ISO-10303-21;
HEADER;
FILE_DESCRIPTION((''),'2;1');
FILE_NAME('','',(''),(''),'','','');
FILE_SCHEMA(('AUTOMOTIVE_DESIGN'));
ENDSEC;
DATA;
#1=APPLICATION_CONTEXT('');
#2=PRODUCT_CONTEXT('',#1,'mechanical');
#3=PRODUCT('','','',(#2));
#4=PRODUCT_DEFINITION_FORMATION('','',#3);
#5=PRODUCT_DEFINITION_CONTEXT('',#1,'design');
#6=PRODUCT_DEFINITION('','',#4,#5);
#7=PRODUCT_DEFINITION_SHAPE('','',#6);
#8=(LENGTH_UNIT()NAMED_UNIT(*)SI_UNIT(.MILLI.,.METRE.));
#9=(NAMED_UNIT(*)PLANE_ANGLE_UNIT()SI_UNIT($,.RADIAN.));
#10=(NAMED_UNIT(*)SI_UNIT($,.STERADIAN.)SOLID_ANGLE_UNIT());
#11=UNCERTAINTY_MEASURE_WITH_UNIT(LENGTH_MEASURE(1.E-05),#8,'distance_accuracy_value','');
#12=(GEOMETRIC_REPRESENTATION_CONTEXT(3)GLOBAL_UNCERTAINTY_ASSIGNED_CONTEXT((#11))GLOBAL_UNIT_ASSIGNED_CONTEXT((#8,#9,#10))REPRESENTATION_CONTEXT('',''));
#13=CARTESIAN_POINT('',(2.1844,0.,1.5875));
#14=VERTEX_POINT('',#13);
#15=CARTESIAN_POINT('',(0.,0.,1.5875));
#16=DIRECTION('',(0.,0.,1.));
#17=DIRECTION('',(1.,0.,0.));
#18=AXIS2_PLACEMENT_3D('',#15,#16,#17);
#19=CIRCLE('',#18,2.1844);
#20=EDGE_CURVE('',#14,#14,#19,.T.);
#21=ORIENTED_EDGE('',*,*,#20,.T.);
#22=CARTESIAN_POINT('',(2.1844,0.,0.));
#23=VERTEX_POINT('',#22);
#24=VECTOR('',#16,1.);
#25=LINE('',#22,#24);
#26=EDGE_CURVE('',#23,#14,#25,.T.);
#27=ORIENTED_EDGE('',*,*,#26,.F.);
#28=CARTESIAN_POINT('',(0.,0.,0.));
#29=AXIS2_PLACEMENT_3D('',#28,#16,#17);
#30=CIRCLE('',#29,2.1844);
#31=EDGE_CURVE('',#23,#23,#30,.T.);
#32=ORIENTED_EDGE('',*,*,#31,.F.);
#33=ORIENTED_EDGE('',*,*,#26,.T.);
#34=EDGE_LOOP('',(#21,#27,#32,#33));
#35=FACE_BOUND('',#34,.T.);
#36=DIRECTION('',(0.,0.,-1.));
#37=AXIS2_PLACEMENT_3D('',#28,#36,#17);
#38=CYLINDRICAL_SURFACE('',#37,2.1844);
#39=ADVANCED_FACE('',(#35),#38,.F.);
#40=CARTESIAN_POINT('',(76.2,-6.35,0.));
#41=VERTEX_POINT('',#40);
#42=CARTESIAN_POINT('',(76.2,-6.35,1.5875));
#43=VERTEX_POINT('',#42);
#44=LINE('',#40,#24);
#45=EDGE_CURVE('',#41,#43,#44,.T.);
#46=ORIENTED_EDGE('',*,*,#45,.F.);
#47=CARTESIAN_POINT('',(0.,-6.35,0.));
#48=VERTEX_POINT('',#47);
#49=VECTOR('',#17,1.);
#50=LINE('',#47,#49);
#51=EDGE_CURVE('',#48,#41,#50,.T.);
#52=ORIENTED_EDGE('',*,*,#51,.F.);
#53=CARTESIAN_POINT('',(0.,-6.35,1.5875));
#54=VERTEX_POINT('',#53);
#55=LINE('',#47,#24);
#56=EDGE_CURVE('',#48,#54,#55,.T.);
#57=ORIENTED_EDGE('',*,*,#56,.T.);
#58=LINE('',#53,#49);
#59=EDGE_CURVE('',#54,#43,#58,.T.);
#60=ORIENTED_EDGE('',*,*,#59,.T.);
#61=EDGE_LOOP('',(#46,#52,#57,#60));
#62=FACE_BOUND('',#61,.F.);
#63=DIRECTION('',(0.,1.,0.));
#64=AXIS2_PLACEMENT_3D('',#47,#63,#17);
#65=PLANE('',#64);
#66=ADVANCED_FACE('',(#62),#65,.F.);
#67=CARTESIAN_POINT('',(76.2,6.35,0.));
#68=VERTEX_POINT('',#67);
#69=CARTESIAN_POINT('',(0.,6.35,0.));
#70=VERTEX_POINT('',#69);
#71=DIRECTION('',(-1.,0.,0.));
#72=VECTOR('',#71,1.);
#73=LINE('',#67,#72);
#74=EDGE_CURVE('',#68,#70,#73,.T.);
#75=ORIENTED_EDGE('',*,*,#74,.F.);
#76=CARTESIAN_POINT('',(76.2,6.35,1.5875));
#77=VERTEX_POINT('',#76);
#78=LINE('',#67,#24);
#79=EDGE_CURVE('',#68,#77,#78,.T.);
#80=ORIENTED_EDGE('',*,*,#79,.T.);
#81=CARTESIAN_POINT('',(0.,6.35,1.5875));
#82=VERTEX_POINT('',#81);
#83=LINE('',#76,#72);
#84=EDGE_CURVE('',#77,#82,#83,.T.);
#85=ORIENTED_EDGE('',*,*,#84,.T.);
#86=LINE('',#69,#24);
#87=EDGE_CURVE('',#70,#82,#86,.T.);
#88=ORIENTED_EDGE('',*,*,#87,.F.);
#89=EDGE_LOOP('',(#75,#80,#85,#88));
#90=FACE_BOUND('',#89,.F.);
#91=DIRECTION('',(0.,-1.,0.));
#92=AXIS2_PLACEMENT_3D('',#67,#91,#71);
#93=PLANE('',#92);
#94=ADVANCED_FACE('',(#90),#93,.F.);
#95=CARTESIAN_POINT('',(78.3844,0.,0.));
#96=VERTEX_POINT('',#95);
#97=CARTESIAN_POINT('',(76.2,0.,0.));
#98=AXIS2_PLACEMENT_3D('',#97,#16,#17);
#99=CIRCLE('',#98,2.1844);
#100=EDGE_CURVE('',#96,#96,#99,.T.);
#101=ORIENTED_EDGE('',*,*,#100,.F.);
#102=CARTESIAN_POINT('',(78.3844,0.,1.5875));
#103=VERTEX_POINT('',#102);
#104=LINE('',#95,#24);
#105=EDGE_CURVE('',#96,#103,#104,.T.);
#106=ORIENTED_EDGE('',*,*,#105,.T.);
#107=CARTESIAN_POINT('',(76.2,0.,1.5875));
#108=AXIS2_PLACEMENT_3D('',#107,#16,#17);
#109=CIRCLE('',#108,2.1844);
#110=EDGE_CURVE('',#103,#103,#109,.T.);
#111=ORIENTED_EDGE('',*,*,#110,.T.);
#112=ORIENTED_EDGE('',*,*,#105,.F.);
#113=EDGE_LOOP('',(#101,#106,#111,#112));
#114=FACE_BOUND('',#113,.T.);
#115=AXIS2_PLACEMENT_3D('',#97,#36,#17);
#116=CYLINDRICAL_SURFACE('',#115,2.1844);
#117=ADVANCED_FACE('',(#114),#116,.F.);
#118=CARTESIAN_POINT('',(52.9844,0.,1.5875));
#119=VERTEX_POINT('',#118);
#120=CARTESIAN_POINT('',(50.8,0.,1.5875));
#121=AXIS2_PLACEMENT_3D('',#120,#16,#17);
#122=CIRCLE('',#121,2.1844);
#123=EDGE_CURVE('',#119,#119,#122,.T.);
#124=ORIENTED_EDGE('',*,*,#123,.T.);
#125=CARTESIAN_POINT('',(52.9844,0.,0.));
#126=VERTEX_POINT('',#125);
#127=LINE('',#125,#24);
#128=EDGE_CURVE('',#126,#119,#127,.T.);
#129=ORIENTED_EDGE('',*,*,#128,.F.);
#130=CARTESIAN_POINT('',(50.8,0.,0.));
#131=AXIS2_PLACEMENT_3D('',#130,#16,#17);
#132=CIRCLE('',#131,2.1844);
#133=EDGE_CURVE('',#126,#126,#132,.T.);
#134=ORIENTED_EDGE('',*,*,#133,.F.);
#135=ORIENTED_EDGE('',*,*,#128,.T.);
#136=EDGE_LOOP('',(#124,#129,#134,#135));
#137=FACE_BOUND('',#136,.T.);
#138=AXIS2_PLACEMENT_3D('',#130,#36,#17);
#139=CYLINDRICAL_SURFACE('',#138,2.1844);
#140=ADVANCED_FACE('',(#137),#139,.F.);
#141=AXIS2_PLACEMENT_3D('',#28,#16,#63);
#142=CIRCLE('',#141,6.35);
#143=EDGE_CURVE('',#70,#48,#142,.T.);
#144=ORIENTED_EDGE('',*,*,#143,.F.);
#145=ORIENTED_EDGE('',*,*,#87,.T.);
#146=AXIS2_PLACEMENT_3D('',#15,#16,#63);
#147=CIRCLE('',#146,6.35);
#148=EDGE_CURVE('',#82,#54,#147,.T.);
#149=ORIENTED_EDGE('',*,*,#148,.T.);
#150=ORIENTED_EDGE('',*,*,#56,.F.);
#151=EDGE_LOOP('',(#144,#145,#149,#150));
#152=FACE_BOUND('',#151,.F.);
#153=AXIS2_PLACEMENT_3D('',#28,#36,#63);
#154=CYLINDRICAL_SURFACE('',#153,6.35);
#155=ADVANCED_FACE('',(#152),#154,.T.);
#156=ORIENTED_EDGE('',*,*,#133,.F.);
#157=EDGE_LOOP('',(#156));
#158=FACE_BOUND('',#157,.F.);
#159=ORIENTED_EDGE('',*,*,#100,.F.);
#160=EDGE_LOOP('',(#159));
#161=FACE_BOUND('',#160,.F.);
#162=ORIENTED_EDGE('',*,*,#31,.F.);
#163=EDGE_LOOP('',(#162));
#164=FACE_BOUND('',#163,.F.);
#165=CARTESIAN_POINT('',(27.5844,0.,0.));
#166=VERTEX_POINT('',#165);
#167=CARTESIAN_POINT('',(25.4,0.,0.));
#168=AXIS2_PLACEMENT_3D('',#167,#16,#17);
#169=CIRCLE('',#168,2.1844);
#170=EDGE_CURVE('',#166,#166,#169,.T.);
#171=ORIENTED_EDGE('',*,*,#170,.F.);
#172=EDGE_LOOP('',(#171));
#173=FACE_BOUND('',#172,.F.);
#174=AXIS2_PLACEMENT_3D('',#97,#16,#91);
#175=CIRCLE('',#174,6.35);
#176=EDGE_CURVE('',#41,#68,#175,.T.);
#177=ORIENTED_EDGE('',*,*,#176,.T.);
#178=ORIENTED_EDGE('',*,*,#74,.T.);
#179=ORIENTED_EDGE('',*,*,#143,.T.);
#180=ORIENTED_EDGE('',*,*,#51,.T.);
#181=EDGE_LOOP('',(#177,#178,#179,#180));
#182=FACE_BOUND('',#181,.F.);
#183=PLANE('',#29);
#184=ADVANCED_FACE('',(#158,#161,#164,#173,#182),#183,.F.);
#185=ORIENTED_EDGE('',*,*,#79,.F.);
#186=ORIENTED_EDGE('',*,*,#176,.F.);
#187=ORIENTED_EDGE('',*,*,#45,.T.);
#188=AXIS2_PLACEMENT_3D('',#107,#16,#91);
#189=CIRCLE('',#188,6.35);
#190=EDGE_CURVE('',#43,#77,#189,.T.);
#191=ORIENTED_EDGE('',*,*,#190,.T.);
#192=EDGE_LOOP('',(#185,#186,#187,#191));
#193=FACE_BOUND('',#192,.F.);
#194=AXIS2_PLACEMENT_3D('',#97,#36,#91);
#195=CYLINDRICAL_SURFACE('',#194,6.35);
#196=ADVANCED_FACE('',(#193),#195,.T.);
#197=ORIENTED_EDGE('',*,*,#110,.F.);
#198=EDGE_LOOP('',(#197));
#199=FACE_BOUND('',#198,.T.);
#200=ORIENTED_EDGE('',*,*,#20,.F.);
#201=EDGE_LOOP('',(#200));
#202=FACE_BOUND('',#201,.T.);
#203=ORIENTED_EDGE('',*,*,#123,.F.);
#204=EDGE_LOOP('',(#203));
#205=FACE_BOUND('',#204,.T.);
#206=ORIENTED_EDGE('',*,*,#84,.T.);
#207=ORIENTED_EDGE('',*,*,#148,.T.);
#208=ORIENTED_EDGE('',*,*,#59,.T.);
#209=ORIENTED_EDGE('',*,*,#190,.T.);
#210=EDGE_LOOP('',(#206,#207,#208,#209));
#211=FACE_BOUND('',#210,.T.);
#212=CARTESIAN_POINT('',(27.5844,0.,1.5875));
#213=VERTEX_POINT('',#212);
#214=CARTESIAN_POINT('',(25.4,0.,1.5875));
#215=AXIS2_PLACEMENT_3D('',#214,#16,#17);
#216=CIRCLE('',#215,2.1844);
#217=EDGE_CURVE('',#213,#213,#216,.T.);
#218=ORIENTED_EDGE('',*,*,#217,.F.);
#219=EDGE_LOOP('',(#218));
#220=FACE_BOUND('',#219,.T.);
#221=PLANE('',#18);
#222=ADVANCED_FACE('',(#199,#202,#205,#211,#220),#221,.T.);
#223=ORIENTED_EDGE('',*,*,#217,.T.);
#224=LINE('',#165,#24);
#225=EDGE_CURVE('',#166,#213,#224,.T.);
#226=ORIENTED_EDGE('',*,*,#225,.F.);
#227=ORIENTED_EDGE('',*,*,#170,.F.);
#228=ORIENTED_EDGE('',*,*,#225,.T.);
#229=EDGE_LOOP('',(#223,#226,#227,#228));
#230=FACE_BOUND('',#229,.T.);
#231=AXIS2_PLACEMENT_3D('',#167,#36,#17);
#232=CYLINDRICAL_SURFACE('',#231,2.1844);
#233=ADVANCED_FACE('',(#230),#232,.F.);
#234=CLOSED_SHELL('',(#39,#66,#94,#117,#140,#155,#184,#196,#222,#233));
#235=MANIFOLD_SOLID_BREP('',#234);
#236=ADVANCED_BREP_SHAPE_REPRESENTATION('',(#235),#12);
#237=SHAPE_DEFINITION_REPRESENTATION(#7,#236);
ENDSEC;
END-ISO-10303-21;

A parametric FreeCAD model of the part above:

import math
import FreeCAD as App
import Part
import Sketcher
Q = App.Units.Quantity

doc = App.newDocument("Part")
params = doc.addObject("Spreadsheet::Sheet", "Params")
for row, (alias, value) in enumerate([
    ("sketch1_width", "3 in"),
    ("sketch1_diameter", "0.172 in"),
    ("sketch1_radius", "0.25 in"),
    ("pad1_length", "0.0625 in"),
], start=1):
    params.set(f"A{row}", alias)
    params.set(f"B{row}", "=" + value)
    params.setAlias(f"B{row}", alias)

body = doc.addObject("PartDesign::Body", "Body")

# Sketch on XY plane
sketch1 = body.newObject("Sketcher::SketchObject", "Sketch")
sketch1.AttachmentSupport = (doc.getObject("XY_Plane"), [""])
sketch1.MapMode = "FlatFace"
sketch1.addGeometry([
    Part.ArcOfCircle(Part.Circle(App.Vector(0, 0, 0), App.Vector(0, 0, 1), 6.35), math.radians(90), math.radians(270)),  # 0
    Part.LineSegment(App.Vector(0, -6.35, 0), App.Vector(76.2, -6.35, 0)),  # 1
    Part.ArcOfCircle(Part.Circle(App.Vector(76.2, 0, 0), App.Vector(0, 0, 1), 6.35), math.radians(-90), math.radians(90)),  # 2
    Part.LineSegment(App.Vector(76.2, 6.35, 0), App.Vector(0, 6.35, 0)),  # 3
    Part.Circle(App.Vector(0, 0, 0), App.Vector(0, 0, 1), 2.1844),  # 4
    Part.Circle(App.Vector(25.4, 0, 0), App.Vector(0, 0, 1), 2.1844),  # 5
    Part.Circle(App.Vector(50.8, 0, 0), App.Vector(0, 0, 1), 2.1844),  # 6
    Part.Circle(App.Vector(76.2, 0, 0), App.Vector(0, 0, 1), 2.1844),  # 7
], False)
sketch1.addConstraint([
    Sketcher.Constraint("Tangent", 0, 2, 1, 1),
    Sketcher.Constraint("Tangent", 1, 2, 2, 1),
    Sketcher.Constraint("Tangent", 2, 2, 3, 1),
    Sketcher.Constraint("Tangent", 3, 2, 0, 1),
    Sketcher.Constraint("Horizontal", 1),
    Sketcher.Constraint("Horizontal", 3),
    Sketcher.Constraint("Coincident", 0, 3, -1, 1),
    Sketcher.Constraint("Coincident", 4, 3, -1, 1),
    Sketcher.Constraint("Coincident", 7, 3, 2, 3),
    Sketcher.Constraint("Equal", 4, 5),
    Sketcher.Constraint("Equal", 5, 6),
    Sketcher.Constraint("Equal", 6, 7),
    Sketcher.Constraint("PointOnObject", 5, 3, -1),
    Sketcher.Constraint("PointOnObject", 6, 3, -1),
    Sketcher.Constraint("DistanceX", 1, 1, 1, 2, Q("3 in")),
    Sketcher.Constraint("Diameter", 4, Q("0.172 in")),
    Sketcher.Constraint("DistanceX", -1, 1, 5, 3, Q("1 in")),
    Sketcher.Constraint("DistanceX", 5, 3, 6, 3, Q("1 in")),
    Sketcher.Constraint("Radius", 0, Q("0.25 in")),
])
sketch1.setExpression("Constraints[14]", "Params.sketch1_width")
sketch1.setExpression("Constraints[15]", "Params.sketch1_diameter")
sketch1.setExpression("Constraints[18]", "Params.sketch1_radius")
pad1 = body.newObject("PartDesign::Pad", "Pad")
pad1.Profile = sketch1
pad1.setExpression("Length", "Params.pad1_length")

doc.recompute()
